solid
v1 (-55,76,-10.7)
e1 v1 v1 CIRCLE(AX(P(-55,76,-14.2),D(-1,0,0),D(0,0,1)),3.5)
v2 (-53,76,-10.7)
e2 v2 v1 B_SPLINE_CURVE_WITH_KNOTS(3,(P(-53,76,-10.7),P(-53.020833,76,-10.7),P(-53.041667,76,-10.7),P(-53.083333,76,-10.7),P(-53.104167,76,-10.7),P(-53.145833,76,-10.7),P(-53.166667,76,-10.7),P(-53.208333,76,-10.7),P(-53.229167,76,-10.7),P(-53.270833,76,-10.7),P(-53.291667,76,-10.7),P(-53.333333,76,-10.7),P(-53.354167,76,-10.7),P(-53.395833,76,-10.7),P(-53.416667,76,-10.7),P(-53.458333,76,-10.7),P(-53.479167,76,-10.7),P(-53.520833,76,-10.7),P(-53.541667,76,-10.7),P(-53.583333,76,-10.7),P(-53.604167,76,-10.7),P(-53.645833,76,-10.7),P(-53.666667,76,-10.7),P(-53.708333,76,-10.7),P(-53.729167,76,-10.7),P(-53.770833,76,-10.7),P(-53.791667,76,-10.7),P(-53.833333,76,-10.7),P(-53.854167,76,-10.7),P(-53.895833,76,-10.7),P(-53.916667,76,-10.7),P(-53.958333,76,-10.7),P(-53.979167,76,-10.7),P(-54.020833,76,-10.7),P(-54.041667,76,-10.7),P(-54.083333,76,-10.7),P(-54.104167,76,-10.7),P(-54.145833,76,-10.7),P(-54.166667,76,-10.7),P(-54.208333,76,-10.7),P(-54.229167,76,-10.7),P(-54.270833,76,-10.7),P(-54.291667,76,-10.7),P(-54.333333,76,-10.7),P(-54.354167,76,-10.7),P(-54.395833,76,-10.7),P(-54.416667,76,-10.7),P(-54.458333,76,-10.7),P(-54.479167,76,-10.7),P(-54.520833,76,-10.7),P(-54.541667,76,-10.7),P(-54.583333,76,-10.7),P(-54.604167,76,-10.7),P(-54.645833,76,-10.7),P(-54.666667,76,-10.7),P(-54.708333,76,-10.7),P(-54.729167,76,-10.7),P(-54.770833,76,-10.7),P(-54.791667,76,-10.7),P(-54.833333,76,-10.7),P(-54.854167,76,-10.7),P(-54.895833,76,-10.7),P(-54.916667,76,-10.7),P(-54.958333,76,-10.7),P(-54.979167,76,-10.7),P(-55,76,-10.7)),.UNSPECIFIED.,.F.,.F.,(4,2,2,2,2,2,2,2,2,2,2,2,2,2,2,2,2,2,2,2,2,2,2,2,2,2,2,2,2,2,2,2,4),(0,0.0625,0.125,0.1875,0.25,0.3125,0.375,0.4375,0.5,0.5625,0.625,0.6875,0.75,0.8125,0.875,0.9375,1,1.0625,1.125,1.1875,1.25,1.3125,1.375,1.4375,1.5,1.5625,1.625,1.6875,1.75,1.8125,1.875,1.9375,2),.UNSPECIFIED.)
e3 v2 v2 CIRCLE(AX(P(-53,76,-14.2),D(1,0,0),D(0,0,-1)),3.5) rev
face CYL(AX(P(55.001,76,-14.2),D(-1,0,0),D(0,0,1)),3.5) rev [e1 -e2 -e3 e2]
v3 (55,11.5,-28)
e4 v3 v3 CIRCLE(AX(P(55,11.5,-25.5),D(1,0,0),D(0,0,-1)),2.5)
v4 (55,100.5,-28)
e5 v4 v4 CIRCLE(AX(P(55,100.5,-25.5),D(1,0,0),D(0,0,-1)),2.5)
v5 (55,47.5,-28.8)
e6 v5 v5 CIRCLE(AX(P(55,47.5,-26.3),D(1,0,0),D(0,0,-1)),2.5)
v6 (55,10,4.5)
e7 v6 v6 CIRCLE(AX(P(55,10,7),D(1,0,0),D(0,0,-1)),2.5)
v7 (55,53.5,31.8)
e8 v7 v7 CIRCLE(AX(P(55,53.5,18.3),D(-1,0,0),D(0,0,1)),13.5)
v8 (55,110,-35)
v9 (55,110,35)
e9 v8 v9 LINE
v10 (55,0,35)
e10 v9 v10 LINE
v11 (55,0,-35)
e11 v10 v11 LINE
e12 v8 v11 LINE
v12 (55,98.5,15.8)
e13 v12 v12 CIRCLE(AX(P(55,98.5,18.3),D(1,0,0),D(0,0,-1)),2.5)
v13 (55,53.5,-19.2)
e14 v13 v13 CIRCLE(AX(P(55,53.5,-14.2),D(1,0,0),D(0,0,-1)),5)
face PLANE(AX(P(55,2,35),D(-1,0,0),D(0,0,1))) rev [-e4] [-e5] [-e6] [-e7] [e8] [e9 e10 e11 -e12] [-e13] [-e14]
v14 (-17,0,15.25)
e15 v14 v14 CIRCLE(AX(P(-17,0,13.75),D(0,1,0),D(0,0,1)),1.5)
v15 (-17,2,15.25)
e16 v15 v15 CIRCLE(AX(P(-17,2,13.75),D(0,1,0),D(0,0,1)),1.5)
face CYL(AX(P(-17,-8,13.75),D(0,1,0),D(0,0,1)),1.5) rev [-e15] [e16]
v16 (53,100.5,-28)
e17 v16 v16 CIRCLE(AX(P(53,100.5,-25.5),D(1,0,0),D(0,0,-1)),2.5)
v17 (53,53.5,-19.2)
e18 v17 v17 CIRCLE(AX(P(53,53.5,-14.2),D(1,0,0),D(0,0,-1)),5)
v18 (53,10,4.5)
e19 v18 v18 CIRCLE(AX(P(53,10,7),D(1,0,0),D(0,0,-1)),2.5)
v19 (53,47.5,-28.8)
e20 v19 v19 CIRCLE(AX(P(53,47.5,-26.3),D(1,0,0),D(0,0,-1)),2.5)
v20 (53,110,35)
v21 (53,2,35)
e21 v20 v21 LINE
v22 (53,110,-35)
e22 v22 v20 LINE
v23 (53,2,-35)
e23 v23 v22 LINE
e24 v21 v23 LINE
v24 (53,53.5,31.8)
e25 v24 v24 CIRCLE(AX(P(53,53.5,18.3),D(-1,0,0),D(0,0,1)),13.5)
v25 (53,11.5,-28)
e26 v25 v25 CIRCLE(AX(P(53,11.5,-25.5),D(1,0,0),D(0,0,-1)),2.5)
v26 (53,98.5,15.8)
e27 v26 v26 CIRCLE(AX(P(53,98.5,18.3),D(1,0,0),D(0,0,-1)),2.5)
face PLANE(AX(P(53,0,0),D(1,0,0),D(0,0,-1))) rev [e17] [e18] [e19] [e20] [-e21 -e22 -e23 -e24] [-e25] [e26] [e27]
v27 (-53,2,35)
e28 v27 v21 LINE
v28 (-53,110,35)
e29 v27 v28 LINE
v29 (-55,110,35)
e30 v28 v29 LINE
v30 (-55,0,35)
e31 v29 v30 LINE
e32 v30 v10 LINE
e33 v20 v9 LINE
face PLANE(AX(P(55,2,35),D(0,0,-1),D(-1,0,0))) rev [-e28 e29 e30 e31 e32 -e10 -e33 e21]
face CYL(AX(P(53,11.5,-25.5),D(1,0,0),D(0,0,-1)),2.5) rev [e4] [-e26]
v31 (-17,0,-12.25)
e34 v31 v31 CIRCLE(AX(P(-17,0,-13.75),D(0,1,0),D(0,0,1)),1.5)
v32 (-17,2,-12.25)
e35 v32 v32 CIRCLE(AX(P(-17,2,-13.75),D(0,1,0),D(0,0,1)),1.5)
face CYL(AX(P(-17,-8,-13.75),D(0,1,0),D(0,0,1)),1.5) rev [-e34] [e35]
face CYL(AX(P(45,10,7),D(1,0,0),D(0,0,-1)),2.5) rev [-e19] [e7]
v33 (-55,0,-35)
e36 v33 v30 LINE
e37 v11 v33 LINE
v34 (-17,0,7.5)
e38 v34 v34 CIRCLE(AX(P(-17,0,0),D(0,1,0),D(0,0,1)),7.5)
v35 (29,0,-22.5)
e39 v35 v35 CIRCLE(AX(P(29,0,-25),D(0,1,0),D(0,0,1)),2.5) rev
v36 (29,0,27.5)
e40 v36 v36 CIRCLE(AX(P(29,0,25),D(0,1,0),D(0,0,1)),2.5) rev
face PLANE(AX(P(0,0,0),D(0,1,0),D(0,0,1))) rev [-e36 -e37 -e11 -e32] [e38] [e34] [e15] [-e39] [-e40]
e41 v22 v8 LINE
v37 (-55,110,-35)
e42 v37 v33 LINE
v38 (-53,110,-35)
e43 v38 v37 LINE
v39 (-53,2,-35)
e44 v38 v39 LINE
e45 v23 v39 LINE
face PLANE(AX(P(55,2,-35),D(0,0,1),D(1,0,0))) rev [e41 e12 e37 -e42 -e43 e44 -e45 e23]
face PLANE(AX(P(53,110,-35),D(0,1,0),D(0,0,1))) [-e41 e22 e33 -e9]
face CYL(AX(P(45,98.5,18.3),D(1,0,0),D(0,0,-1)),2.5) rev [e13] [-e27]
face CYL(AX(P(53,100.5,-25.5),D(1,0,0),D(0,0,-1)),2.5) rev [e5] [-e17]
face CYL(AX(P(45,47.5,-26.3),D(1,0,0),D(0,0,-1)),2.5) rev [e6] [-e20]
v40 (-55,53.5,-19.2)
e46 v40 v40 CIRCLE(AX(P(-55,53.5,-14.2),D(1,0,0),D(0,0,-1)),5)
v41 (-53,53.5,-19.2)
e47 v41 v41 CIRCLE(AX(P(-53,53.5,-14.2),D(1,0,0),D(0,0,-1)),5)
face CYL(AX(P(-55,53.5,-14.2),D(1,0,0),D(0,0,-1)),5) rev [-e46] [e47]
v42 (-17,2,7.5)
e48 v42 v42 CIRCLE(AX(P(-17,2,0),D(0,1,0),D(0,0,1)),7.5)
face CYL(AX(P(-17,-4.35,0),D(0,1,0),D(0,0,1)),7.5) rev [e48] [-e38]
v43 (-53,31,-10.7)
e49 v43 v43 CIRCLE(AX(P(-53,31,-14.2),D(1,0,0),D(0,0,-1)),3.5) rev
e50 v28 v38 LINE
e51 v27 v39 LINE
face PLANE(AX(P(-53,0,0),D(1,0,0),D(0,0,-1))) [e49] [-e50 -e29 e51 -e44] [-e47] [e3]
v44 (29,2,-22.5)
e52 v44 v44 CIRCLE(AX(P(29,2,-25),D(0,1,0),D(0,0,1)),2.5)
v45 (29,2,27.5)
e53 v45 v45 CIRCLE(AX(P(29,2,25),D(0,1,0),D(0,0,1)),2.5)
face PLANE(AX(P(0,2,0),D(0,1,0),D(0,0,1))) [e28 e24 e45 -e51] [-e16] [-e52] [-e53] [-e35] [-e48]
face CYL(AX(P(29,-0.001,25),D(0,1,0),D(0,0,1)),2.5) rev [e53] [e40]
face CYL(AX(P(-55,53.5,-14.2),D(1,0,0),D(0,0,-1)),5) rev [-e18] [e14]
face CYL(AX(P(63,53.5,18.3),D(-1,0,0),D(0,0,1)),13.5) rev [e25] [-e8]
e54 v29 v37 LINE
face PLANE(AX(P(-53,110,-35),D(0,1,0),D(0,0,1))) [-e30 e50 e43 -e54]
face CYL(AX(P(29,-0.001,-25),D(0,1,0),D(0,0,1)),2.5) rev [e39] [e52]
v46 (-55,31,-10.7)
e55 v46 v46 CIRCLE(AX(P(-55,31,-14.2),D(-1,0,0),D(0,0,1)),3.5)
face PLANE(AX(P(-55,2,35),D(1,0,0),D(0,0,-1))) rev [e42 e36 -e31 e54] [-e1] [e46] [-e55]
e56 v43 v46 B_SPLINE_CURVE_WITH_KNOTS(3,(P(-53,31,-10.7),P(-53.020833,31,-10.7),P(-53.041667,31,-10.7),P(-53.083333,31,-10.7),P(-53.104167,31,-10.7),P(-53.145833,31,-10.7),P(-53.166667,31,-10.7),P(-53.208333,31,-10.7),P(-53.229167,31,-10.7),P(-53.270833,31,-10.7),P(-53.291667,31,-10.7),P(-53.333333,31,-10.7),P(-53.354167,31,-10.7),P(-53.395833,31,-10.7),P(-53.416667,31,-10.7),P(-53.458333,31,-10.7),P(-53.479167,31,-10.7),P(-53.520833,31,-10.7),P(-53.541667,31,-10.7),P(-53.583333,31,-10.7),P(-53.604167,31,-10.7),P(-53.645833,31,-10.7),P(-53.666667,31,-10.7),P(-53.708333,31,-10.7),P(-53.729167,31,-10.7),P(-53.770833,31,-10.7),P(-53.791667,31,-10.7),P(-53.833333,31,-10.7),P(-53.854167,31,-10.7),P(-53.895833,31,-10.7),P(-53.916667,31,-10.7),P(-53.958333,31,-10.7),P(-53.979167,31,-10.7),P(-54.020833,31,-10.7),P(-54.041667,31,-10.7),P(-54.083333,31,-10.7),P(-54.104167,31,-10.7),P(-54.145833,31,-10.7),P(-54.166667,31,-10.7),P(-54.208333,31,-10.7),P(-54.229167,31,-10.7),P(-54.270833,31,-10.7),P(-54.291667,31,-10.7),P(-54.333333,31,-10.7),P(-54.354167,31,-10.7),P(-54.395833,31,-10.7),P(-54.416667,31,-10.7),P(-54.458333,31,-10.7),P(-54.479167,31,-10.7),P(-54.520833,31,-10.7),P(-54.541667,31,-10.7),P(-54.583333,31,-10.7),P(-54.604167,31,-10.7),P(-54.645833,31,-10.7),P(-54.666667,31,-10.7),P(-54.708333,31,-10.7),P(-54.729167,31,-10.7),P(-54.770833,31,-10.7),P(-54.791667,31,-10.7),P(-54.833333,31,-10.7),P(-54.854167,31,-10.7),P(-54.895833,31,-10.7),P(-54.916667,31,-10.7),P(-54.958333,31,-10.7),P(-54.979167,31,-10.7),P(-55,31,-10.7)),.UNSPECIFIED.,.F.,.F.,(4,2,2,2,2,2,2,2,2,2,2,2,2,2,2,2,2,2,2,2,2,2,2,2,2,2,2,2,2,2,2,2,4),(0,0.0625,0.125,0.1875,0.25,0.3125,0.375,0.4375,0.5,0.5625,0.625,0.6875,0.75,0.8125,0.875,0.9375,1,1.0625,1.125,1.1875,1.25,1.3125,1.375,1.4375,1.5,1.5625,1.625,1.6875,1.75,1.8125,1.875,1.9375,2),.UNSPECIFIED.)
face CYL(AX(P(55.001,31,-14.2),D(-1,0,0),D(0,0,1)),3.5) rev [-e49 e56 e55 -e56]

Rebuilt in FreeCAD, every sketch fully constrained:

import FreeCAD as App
import Part
import Sketcher

V = App.Vector
Q = App.Units.Quantity

doc = App.newDocument("Part")
body = doc.addObject("PartDesign::Body", "Body")

# Sketch on XZ plane
sketch1 = body.newObject("Sketcher::SketchObject", "Sketch")
sketch1.AttachmentSupport = (doc.getObject("XZ_Plane"), [""])
sketch1.MapMode = "FlatFace"
sketch1.addGeometry(Part.LineSegment(V(-55, -35, 0), V(-55, 35, 0)), False)
sketch1.addGeometry(Part.LineSegment(V(-55, 35, 0), V(55, 35, 0)), False)
sketch1.addGeometry(Part.LineSegment(V(55, 35, 0), V(55, -35, 0)), False)
sketch1.addGeometry(Part.LineSegment(V(55, -35, 0), V(-55, -35, 0)), False)
sketch1.addConstraint(Sketcher.Constraint("Coincident", 0, 2, 1, 1))
sketch1.addConstraint(Sketcher.Constraint("Coincident", 1, 2, 2, 1))
sketch1.addConstraint(Sketcher.Constraint("Coincident", 2, 2, 3, 1))
sketch1.addConstraint(Sketcher.Constraint("Coincident", 3, 2, 0, 1))
sketch1.addConstraint(Sketcher.Constraint("Vertical", 0))
sketch1.addConstraint(Sketcher.Constraint("Horizontal", 1))
sketch1.addConstraint(Sketcher.Constraint("Vertical", 2))
sketch1.addConstraint(Sketcher.Constraint("Horizontal", 3))
sketch1.addConstraint(Sketcher.Constraint("Symmetric", 0, 2, 2, 2, -1, 1))
sketch1.addConstraint(Sketcher.Constraint("DistanceX", 1, 1, 1, 2, Q("110 mm")))
sketch1.addConstraint(Sketcher.Constraint("DistanceY", 0, 1, 0, 2, Q("70 mm")))
pad1 = body.newObject("PartDesign::Pad", "Pad")
pad1.Profile = sketch1
pad1.Length = 2
pad1.Reversed = True

# Sketch on YZ plane
sketch2 = body.newObject("Sketcher::SketchObject", "Sketch001")
sketch2.AttachmentSupport = (doc.getObject("YZ_Plane"), [""])
sketch2.MapMode = "FlatFace"
sketch2.AttachmentOffset = App.Placement(V(0, 0, -55), App.Rotation())
sketch2.addGeometry(Part.LineSegment(V(110, -35, 0), V(0, -35, 0)), False)
sketch2.addGeometry(Part.LineSegment(V(0, -35, 0), V(0, 35, 0)), False)
sketch2.addGeometry(Part.LineSegment(V(0, 35, 0), V(110, 35, 0)), False)
sketch2.addGeometry(Part.LineSegment(V(110, 35, 0), V(110, -35, 0)), False)
sketch2.addConstraint(Sketcher.Constraint("Coincident", 0, 2, 1, 1))
sketch2.addConstraint(Sketcher.Constraint("Coincident", 1, 2, 2, 1))
sketch2.addConstraint(Sketcher.Constraint("Coincident", 2, 2, 3, 1))
sketch2.addConstraint(Sketcher.Constraint("Coincident", 3, 2, 0, 1))
sketch2.addConstraint(Sketcher.Constraint("Horizontal", 0))
sketch2.addConstraint(Sketcher.Constraint("Vertical", 1))
sketch2.addConstraint(Sketcher.Constraint("Horizontal", 2))
sketch2.addConstraint(Sketcher.Constraint("Vertical", 3))
sketch2.addConstraint(Sketcher.Constraint("Symmetric", 0, 2, 1, 2, -1, 1))
sketch2.addConstraint(Sketcher.Constraint("DistanceX", 0, 2, 0, 1, Q("110 mm")))
sketch2.addConstraint(Sketcher.Constraint("DistanceY", 1, 1, 1, 2, Q("70 mm")))
pad2 = body.newObject("PartDesign::Pad", "Pad001")
pad2.Profile = sketch2
pad2.Length = 2

# Sketch on YZ plane
sketch3 = body.newObject("Sketcher::SketchObject", "Sketch002")
sketch3.AttachmentSupport = (doc.getObject("YZ_Plane"), [""])
sketch3.MapMode = "FlatFace"
sketch3.AttachmentOffset = App.Placement(V(0, 0, 55), App.Rotation())
sketch3.addGeometry(Part.LineSegment(V(110, 35, 0), V(0, 35, 0)), False)
sketch3.addGeometry(Part.LineSegment(V(0, 35, 0), V(0, -35, 0)), False)
sketch3.addGeometry(Part.LineSegment(V(0, -35, 0), V(110, -35, 0)), False)
sketch3.addGeometry(Part.LineSegment(V(110, -35, 0), V(110, 35, 0)), False)
sketch3.addConstraint(Sketcher.Constraint("Coincident", 0, 2, 1, 1))
sketch3.addConstraint(Sketcher.Constraint("Coincident", 1, 2, 2, 1))
sketch3.addConstraint(Sketcher.Constraint("Coincident", 2, 2, 3, 1))
sketch3.addConstraint(Sketcher.Constraint("Coincident", 3, 2, 0, 1))
sketch3.addConstraint(Sketcher.Constraint("Horizontal", 0))
sketch3.addConstraint(Sketcher.Constraint("Vertical", 1))
sketch3.addConstraint(Sketcher.Constraint("Horizontal", 2))
sketch3.addConstraint(Sketcher.Constraint("Vertical", 3))
sketch3.addConstraint(Sketcher.Constraint("Symmetric", 0, 2, 1, 2, -1, 1))
sketch3.addConstraint(Sketcher.Constraint("DistanceX", 0, 2, 0, 1, Q("110 mm")))
sketch3.addConstraint(Sketcher.Constraint("DistanceY", 1, 2, 1, 1, Q("70 mm")))
pad3 = body.newObject("PartDesign::Pad", "Pad002")
pad3.Profile = sketch3
pad3.Length = 2
pad3.Reversed = True

# Sketch on XZ plane
sketch4 = body.newObject("Sketcher::SketchObject", "Sketch003")
sketch4.AttachmentSupport = (doc.getObject("XZ_Plane"), [""])
sketch4.MapMode = "FlatFace"
sketch4.AttachmentOffset = App.Placement(V(0, 0, -2), App.Rotation())
sketch4.addGeometry(Part.Circle(V(-17, 0, 0), V(0, 0, 1), 8), False)
sketch4.addConstraint(Sketcher.Constraint("PointOnObject", 0, 3, -1))
sketch4.addConstraint(Sketcher.Constraint("Diameter", 0, Q("15 mm")))
sketch4.addConstraint(Sketcher.Constraint("DistanceX", 0, 3, -1, 1, Q("17 mm")))
pocket1 = body.newObject("PartDesign::Pocket", "Pocket")
pocket1.Profile = sketch4
pocket1.Length = 6.35
pocket1.Reversed = True

# Sketch on YZ plane
sketch5 = body.newObject("Sketcher::SketchObject", "Sketch004")
sketch5.AttachmentSupport = (doc.getObject("YZ_Plane"), [""])
sketch5.MapMode = "FlatFace"
sketch5.AttachmentOffset = App.Placement(V(0, 0, 55), App.Rotation())
sketch5.addGeometry(Part.Circle(V(10, 7, 0), V(0, 0, 1), 2.5), False)
sketch5.addConstraint(Sketcher.Constraint("Diameter", 0, Q("5 mm")))
sketch5.addConstraint(Sketcher.Constraint("DistanceX", -1, 1, 0, 3, Q("10 mm")))
sketch5.addConstraint(Sketcher.Constraint("DistanceY", -1, 1, 0, 3, Q("7 mm")))
pocket2 = body.newObject("PartDesign::Pocket", "Pocket001")
pocket2.Profile = sketch5
pocket2.Length = 10

# Sketch on YZ plane
sketch6 = body.newObject("Sketcher::SketchObject", "Sketch005")
sketch6.AttachmentSupport = (doc.getObject("YZ_Plane"), [""])
sketch6.MapMode = "FlatFace"
sketch6.AttachmentOffset = App.Placement(V(0, 0, 55), App.Rotation())
sketch6.addGeometry(Part.Circle(V(98.5, 18.3, 0), V(0, 0, 1), 2.5), False)
sketch6.addGeometry(Part.Circle(V(47.5, -26.3, 0), V(0, 0, 1), 2.5), False)
sketch6.addConstraint(Sketcher.Constraint("Equal", 0, 1))
sketch6.addConstraint(Sketcher.Constraint("Diameter", 0, Q("5 mm")))
sketch6.addConstraint(Sketcher.Constraint("DistanceX", 1, 3, 0, 3, Q("51 mm")))
sketch6.addConstraint(Sketcher.Constraint("DistanceX", -1, 1, 0, 3, Q("98.5 mm")))
sketch6.addConstraint(Sketcher.Constraint("DistanceY", -1, 1, 0, 3, Q("18.3 mm")))
sketch6.addConstraint(Sketcher.Constraint("DistanceY", 1, 3, -1, 1, Q("26.3 mm")))
pocket3 = body.newObject("PartDesign::Pocket", "Pocket002")
pocket3.Profile = sketch6
pocket3.Length = 10

# Sketch on YZ plane
sketch7 = body.newObject("Sketcher::SketchObject", "Sketch006")
sketch7.AttachmentSupport = (doc.getObject("YZ_Plane"), [""])
sketch7.MapMode = "FlatFace"
sketch7.AttachmentOffset = App.Placement(V(0, 0, 53), App.Rotation())
sketch7.addGeometry(Part.Circle(V(54, 18, 0), V(0, 0, 1), 14), False)
sketch7.addConstraint(Sketcher.Constraint("Diameter", 0, Q("27 mm")))
sketch7.addConstraint(Sketcher.Constraint("DistanceX", -1, 1, 0, 3, Q("53.5 mm")))
sketch7.addConstraint(Sketcher.Constraint("DistanceY", -1, 1, 0, 3, Q("18.3 mm")))
pocket4 = body.newObject("PartDesign::Pocket", "Pocket003")
pocket4.Profile = sketch7
pocket4.Length = 10
pocket4.Reversed = True

# Sketch on YZ plane
sketch8 = body.newObject("Sketcher::SketchObject", "Sketch007")
sketch8.AttachmentSupport = (doc.getObject("YZ_Plane"), [""])
sketch8.MapMode = "FlatFace"
sketch8.AttachmentOffset = App.Placement(V(0, 0, 55), App.Rotation())
sketch8.addGeometry(Part.Circle(V(54, -14, 0), V(0, 0, 1), 5), False)
sketch8.addConstraint(Sketcher.Constraint("Diameter", 0, Q("10 mm")))
sketch8.addConstraint(Sketcher.Constraint("DistanceX", -1, 1, 0, 3, Q("53.5 mm")))
sketch8.addConstraint(Sketcher.Constraint("DistanceY", 0, 3, -1, 1, Q("14.2 mm")))
pocket5 = body.newObject("PartDesign::Pocket", "Pocket004")
pocket5.Profile = sketch8
pocket5.Type = "ThroughAll"

# Sketch on YZ plane
sketch9 = body.newObject("Sketcher::SketchObject", "Sketch008")
sketch9.AttachmentSupport = (doc.getObject("YZ_Plane"), [""])
sketch9.MapMode = "FlatFace"
sketch9.AttachmentOffset = App.Placement(V(0, 0, 55), App.Rotation())
sketch9.addGeometry(Part.Circle(V(11.5, -25.5, 0), V(0, 0, 1), 2.5), False)
sketch9.addGeometry(Part.Circle(V(100.5, -25.5, 0), V(0, 0, 1), 2.5), False)
sketch9.addConstraint(Sketcher.Constraint("Equal", 0, 1))
sketch9.addConstraint(Sketcher.Constraint("Horizontal", 0, 3, 1, 3))
sketch9.addConstraint(Sketcher.Constraint("Diameter", 0, Q("5 mm")))
sketch9.addConstraint(Sketcher.Constraint("DistanceX", 0, 3, 1, 3, Q("89 mm")))
sketch9.addConstraint(Sketcher.Constraint("DistanceX", -1, 1, 0, 3, Q("11.5 mm")))
sketch9.addConstraint(Sketcher.Constraint("DistanceY", 0, 3, -1, 1, Q("25.5 mm")))
pocket6 = body.newObject("PartDesign::Pocket", "Pocket005")
pocket6.Profile = sketch9
pocket6.Length = 2

# Sketch on XZ plane
sketch10 = body.newObject("Sketcher::SketchObject", "Sketch009")
sketch10.AttachmentSupport = (doc.getObject("XZ_Plane"), [""])
sketch10.MapMode = "FlatFace"
sketch10.AttachmentOffset = App.Placement(V(0, 0, -2), App.Rotation())
sketch10.addGeometry(Part.Circle(V(29, -25, 0), V(0, 0, 1), 2.5), False)
sketch10.addConstraint(Sketcher.Constraint("Diameter", 0, Q("5 mm")))
sketch10.addConstraint(Sketcher.Constraint("DistanceX", -1, 1, 0, 3, Q("29 mm")))
sketch10.addConstraint(Sketcher.Constraint("DistanceY", 0, 3, -1, 1, Q("25 mm")))
pocket7 = body.newObject("PartDesign::Pocket", "Pocket006")
pocket7.Profile = sketch10
pocket7.Type = "UpToFirst"
pocket7.Reversed = True

# Sketch on XZ plane
sketch11 = body.newObject("Sketcher::SketchObject", "Sketch010")
sketch11.AttachmentSupport = (doc.getObject("XZ_Plane"), [""])
sketch11.MapMode = "FlatFace"
sketch11.AttachmentOffset = App.Placement(V(0, 0, -2), App.Rotation())
sketch11.addGeometry(Part.Circle(V(29, 25, 0), V(0, 0, 1), 2.5), False)
sketch11.addConstraint(Sketcher.Constraint("Diameter", 0, Q("5 mm")))
sketch11.addConstraint(Sketcher.Constraint("DistanceX", -1, 1, 0, 3, Q("29 mm")))
sketch11.addConstraint(Sketcher.Constraint("DistanceY", -1, 1, 0, 3, Q("25 mm")))
pocket8 = body.newObject("PartDesign::Pocket", "Pocket007")
pocket8.Profile = sketch11
pocket8.Type = "UpToFirst"
pocket8.Reversed = True

# Sketch on XZ plane
sketch12 = body.newObject("Sketcher::SketchObject", "Sketch011")
sketch12.AttachmentSupport = (doc.getObject("XZ_Plane"), [""])
sketch12.MapMode = "FlatFace"
sketch12.AttachmentOffset = App.Placement(V(0, 0, -2), App.Rotation())
sketch12.addGeometry(Part.Circle(V(-17, -13.8, 0), V(0, 0, 1), 1.5), False)
sketch12.addGeometry(Part.Circle(V(-17, 13.8, 0), V(0, 0, 1), 1.5), False)
sketch12.addConstraint(Sketcher.Constraint("Equal", 0, 1))
sketch12.addConstraint(Sketcher.Constraint("Symmetric", 0, 3, 1, 3, -1))
sketch12.addConstraint(Sketcher.Constraint("Diameter", 0, Q("3 mm")))
sketch12.addConstraint(Sketcher.Constraint("DistanceX", 0, 3, -1, 1, Q("17 mm")))
sketch12.addConstraint(Sketcher.Constraint("DistanceY", 0, 3, 1, 3, Q("27.5 mm")))
pocket9 = body.newObject("PartDesign::Pocket", "Pocket008")
pocket9.Profile = sketch12
pocket9.Length = 10
pocket9.Reversed = True

# Sketch on YZ plane
sketch13 = body.newObject("Sketcher::SketchObject", "Sketch012")
sketch13.AttachmentSupport = (doc.getObject("YZ_Plane"), [""])
sketch13.MapMode = "FlatFace"
sketch13.AttachmentOffset = App.Placement(V(0, 0, -55), App.Rotation())
sketch13.addGeometry(Part.Circle(V(31, -14.2, 0), V(0, 0, 1), 3.5), False)
sketch13.addConstraint(Sketcher.Constraint("Diameter", 0, Q("7 mm")))
sketch13.addConstraint(Sketcher.Constraint("DistanceX", -1, 1, 0, 3, Q("31 mm")))
sketch13.addConstraint(Sketcher.Constraint("DistanceY", 0, 3, -1, 1, Q("14.2 mm")))
pocket10 = body.newObject("PartDesign::Pocket", "Pocket009")
pocket10.Profile = sketch13
pocket10.Type = "UpToFirst"
pocket10.Reversed = True

# Sketch on YZ plane
sketch14 = body.newObject("Sketcher::SketchObject", "Sketch013")
sketch14.AttachmentSupport = (doc.getObject("YZ_Plane"), [""])
sketch14.MapMode = "FlatFace"
sketch14.AttachmentOffset = App.Placement(V(0, 0, -55), App.Rotation())
sketch14.addGeometry(Part.Circle(V(76, -14.2, 0), V(0, 0, 1), 3.5), False)
sketch14.addConstraint(Sketcher.Constraint("Diameter", 0, Q("7 mm")))
sketch14.addConstraint(Sketcher.Constraint("DistanceX", -1, 1, 0, 3, Q("76 mm")))
sketch14.addConstraint(Sketcher.Constraint("DistanceY", 0, 3, -1, 1, Q("14.2 mm")))
pocket11 = body.newObject("PartDesign::Pocket", "Pocket010")
pocket11.Profile = sketch14
pocket11.Type = "UpToFirst"
pocket11.Reversed = True

doc.recompute()
